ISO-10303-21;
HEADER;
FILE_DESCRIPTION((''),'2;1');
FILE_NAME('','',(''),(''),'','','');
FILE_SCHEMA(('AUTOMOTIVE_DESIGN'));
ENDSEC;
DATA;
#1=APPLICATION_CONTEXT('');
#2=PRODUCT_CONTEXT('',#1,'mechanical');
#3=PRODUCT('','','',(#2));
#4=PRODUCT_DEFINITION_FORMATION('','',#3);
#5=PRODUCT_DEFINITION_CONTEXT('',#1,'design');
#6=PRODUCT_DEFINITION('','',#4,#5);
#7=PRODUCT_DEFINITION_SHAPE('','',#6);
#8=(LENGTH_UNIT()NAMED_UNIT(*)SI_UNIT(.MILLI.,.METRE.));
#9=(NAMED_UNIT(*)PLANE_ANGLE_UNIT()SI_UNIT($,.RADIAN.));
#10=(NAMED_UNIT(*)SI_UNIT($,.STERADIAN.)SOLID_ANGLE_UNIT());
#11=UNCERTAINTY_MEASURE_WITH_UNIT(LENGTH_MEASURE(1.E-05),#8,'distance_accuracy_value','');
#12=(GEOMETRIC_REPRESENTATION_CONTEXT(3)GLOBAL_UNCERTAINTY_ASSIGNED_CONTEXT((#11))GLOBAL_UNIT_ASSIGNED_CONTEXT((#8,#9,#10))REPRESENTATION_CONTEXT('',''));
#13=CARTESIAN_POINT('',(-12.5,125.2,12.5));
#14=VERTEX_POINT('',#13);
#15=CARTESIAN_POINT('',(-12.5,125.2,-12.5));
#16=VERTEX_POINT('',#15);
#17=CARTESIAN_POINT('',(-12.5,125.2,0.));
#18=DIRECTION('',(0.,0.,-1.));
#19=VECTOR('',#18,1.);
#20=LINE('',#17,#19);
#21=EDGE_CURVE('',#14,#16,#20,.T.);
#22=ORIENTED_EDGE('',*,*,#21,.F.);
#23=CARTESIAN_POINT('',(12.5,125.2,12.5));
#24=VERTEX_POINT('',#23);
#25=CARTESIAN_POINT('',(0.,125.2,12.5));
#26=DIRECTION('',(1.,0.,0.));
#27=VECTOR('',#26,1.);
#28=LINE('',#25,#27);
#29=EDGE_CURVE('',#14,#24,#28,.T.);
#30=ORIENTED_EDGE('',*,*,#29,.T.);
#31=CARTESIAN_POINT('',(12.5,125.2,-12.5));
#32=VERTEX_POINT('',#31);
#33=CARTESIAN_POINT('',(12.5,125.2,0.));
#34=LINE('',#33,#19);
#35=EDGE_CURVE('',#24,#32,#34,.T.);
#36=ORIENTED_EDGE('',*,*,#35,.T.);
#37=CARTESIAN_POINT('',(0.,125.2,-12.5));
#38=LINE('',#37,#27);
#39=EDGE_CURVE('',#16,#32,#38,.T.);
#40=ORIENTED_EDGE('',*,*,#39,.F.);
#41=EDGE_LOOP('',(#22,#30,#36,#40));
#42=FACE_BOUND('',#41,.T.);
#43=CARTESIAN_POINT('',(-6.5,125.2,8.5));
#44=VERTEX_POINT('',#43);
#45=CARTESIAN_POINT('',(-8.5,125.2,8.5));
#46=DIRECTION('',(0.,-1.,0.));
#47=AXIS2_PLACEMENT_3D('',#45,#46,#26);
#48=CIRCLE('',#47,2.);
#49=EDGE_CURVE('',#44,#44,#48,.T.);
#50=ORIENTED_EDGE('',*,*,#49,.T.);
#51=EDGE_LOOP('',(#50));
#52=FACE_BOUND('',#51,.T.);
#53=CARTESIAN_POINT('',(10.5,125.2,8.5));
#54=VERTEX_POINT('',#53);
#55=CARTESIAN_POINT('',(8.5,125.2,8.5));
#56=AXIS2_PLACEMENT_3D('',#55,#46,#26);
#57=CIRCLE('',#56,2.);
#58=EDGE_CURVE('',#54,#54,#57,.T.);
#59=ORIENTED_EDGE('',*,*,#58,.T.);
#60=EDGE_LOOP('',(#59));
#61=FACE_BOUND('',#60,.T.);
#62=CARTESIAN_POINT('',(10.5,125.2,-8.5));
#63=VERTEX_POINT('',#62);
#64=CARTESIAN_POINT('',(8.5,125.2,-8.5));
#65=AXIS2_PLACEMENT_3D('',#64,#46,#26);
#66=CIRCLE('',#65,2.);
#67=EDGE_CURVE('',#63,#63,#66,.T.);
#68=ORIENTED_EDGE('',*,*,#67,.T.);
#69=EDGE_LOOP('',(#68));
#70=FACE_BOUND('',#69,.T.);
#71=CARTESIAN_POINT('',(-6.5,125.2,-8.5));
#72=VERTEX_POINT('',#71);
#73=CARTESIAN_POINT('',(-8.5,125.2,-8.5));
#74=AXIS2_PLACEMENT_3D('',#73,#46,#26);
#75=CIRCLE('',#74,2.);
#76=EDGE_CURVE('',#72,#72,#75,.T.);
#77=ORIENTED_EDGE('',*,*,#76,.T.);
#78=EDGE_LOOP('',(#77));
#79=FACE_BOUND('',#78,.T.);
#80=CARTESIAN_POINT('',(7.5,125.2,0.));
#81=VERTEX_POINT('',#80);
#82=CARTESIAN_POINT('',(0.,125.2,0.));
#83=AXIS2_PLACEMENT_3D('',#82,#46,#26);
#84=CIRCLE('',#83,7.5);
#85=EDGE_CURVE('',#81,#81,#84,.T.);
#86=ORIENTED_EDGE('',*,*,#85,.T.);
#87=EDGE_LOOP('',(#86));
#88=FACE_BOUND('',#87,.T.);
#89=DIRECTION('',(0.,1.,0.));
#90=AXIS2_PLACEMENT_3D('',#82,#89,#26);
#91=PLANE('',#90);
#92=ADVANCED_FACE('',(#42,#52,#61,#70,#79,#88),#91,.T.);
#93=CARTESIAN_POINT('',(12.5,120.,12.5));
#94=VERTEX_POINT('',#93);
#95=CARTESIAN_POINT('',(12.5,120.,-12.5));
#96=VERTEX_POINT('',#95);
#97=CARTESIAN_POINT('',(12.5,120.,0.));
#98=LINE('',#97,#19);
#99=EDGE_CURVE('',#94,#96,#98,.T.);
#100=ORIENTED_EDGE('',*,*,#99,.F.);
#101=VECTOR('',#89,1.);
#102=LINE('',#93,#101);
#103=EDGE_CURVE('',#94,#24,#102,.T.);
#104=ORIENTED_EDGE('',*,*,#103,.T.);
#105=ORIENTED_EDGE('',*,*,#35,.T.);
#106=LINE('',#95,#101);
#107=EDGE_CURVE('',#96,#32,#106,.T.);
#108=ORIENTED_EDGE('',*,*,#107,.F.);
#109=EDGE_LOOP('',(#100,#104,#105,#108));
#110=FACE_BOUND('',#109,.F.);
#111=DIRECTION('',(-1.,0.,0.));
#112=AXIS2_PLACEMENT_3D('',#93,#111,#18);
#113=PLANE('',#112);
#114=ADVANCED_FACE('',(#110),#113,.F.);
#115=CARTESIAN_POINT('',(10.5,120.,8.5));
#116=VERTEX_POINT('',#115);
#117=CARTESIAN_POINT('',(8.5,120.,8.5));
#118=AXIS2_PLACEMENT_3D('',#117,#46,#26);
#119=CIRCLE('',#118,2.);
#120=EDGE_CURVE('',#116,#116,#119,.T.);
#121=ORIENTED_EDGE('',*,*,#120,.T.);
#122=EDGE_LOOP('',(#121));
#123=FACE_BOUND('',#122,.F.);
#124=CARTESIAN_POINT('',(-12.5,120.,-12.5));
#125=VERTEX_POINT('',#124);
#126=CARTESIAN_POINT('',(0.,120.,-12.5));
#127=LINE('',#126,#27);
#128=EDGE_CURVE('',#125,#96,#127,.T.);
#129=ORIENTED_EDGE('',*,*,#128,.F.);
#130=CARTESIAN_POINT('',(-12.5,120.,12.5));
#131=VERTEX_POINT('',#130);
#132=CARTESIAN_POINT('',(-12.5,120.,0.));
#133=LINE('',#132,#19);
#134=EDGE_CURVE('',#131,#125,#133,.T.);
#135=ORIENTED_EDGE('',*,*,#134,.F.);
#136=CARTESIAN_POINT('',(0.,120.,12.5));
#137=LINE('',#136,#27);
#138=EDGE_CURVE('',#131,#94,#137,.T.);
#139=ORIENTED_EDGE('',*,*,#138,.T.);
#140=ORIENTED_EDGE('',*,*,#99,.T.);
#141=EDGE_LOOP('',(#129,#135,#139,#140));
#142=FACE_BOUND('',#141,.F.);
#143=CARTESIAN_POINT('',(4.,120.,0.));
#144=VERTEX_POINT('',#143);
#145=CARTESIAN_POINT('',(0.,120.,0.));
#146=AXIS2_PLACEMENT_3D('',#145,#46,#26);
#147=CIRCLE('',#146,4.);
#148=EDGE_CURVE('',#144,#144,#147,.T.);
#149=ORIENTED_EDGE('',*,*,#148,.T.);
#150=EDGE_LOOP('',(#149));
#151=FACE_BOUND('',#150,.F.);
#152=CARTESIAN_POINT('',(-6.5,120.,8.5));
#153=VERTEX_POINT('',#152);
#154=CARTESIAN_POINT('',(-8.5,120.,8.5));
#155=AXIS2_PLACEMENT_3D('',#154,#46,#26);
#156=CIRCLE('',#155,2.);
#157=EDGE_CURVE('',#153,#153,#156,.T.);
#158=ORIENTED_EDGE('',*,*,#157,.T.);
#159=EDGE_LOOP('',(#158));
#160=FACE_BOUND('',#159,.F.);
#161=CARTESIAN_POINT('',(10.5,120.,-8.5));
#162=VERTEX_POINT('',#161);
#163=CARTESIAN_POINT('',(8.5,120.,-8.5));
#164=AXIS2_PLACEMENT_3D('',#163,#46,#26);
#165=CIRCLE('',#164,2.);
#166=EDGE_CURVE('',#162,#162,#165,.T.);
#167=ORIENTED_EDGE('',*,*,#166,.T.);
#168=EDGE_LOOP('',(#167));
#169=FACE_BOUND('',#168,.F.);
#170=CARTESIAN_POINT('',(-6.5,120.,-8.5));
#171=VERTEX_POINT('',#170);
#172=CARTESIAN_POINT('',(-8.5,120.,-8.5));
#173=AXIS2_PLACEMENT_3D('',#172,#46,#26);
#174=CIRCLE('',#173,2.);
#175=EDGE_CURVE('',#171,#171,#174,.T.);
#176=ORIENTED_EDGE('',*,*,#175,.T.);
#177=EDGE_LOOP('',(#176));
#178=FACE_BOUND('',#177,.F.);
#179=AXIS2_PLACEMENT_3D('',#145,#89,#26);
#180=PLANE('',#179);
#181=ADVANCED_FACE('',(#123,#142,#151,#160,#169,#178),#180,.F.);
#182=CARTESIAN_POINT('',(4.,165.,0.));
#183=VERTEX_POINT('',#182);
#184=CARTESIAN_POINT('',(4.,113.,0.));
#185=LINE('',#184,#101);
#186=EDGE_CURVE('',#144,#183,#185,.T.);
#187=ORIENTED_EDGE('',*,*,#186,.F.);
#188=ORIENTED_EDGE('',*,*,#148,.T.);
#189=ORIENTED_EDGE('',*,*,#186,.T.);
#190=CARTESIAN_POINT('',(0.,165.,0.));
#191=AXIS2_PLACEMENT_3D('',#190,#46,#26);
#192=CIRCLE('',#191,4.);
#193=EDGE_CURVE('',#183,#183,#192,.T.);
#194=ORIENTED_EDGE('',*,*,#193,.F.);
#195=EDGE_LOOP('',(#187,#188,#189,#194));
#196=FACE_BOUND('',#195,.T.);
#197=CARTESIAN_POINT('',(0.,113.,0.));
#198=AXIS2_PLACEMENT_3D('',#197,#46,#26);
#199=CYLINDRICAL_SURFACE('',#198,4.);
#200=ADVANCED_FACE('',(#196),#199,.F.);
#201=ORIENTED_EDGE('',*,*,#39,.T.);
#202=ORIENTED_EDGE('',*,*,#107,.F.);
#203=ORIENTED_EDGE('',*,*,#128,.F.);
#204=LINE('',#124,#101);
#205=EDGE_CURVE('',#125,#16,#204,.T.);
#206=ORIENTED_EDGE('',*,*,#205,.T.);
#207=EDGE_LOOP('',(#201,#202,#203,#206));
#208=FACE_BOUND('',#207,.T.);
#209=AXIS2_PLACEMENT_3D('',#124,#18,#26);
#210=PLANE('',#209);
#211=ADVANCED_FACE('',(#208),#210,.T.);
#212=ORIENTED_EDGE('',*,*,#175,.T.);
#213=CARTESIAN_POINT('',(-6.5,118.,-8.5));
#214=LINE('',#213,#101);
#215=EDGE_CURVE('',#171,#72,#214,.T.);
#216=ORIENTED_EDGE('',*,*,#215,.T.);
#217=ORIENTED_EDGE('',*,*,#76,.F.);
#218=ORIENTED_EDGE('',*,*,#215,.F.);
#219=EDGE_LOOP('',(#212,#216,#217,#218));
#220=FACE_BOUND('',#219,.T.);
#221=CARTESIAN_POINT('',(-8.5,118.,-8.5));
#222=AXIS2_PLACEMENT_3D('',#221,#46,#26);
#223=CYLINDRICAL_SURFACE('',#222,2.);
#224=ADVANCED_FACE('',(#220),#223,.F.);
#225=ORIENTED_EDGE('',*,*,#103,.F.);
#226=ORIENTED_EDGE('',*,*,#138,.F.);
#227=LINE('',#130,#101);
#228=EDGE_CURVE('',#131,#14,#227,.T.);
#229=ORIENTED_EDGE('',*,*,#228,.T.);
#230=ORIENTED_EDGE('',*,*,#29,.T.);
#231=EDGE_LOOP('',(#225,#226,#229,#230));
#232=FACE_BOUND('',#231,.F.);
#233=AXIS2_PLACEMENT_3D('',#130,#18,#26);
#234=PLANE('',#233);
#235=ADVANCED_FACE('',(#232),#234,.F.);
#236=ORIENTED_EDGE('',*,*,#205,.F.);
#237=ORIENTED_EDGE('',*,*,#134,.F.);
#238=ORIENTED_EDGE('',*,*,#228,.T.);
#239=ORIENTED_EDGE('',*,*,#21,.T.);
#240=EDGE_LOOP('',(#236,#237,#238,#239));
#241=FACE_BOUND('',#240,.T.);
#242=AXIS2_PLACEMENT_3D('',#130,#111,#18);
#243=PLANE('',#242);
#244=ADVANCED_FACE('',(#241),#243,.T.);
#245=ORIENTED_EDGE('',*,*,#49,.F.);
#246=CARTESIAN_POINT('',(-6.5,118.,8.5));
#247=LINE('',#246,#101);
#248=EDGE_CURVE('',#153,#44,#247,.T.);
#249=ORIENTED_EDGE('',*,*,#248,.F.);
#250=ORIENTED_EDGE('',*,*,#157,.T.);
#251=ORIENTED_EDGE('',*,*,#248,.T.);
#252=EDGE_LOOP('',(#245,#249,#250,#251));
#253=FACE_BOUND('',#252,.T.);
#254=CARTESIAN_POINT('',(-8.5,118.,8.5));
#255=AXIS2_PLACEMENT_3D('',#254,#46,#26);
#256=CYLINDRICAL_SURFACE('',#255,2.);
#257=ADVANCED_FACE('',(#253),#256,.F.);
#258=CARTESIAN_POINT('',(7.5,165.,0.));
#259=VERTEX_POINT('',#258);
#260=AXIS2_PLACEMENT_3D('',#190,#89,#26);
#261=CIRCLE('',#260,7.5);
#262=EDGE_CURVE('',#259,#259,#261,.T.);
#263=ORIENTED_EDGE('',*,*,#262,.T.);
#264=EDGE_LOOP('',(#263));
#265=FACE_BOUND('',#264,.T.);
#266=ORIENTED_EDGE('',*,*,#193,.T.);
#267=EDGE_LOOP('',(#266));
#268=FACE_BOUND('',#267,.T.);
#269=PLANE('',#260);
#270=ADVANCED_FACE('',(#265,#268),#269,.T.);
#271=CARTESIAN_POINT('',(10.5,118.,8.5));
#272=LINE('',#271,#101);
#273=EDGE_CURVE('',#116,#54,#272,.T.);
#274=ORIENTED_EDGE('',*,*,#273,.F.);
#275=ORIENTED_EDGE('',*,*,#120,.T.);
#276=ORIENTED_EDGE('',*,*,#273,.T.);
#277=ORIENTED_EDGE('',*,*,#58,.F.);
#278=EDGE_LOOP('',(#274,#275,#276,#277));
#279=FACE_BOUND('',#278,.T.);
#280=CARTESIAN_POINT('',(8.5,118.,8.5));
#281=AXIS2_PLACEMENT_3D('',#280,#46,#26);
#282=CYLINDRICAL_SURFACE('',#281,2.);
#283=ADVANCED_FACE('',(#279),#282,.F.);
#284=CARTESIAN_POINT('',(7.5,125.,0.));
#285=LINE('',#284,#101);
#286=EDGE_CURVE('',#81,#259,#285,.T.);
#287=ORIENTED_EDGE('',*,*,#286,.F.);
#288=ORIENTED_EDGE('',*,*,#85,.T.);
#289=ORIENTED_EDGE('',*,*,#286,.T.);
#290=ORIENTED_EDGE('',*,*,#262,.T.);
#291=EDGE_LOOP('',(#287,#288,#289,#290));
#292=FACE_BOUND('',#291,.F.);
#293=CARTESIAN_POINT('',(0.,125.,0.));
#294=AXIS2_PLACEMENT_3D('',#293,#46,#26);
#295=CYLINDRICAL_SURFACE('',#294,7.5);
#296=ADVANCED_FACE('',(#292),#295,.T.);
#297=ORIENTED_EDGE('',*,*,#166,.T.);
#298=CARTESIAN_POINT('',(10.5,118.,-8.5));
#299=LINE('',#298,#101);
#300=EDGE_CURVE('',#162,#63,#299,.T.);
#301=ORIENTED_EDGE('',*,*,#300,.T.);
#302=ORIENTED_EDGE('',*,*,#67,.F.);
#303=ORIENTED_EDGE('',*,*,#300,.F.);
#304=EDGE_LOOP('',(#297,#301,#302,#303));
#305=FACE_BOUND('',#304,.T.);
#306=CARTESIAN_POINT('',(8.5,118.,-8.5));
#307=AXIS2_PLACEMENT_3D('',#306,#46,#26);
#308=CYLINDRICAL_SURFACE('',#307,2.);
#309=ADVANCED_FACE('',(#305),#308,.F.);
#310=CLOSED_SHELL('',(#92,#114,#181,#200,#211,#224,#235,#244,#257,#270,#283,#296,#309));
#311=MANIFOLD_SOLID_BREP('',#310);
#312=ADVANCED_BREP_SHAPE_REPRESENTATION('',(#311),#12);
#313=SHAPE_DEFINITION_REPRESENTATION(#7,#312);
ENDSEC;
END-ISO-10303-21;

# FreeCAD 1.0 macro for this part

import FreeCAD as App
import Part
import Sketcher
from FreeCAD import Vector


def add_polygon(sketch, points):
    """Adds a closed chain of lines whose ends are joined by coincident constraints."""
    first, n = sketch.GeometryCount, len(points)
    for a, b in zip(points, points[1:] + points[:1]):
        sketch.addGeometry(Part.LineSegment(App.Vector(*a, 0), App.Vector(*b, 0)), False)
    for i in range(n):
        sketch.addConstraint(Sketcher.Constraint("Coincident", first + i, 2, first + (i + 1) % n, 1))

doc = App.newDocument("Part")
body = doc.addObject("PartDesign::Body", "Body")

sketch1 = body.newObject("Sketcher::SketchObject", "Sketch")
sketch1.AttachmentSupport = (doc.getObject("XY_Plane"), [""])
sketch1.MapMode = "FlatFace"
sketch1.AttachmentOffset = App.Placement(Vector(0, 0, -2), App.Rotation())
sketch1.addGeometry(Part.Circle(Vector(21, 21, 0), Vector(0, 0, 1), 2), False)
sketch1.addConstraint([
    Sketcher.Constraint("Diameter", 0, 4.0),
    Sketcher.Constraint("DistanceX", -1, 1, 0, 3, 21.0),
    Sketcher.Constraint("DistanceY", -1, 1, 0, 3, 21.0),
])
pad1 = body.newObject("PartDesign::Pad", "Pad")
pad1.Profile = sketch1
pad1.Length = 10
body2 = doc.addObject("PartDesign::Body", "Body001")

sketch2 = body2.newObject("Sketcher::SketchObject", "Sketch001")
sketch2.AttachmentSupport = (doc.getObject("XY_Plane001"), [""])
sketch2.MapMode = "FlatFace"
sketch2.AttachmentOffset = App.Placement(Vector(0, 0, -2), App.Rotation())
sketch2.addGeometry(Part.Circle(Vector(21, 4, 0), Vector(0, 0, 1), 2), False)
sketch2.addConstraint([
    Sketcher.Constraint("Diameter", 0, 4.0),
    Sketcher.Constraint("DistanceX", -1, 1, 0, 3, 21.0),
    Sketcher.Constraint("DistanceY", -1, 1, 0, 3, 4.0),
])
pad2 = body2.newObject("PartDesign::Pad", "Pad001")
pad2.Profile = sketch2
pad2.Length = 10
body3 = doc.addObject("PartDesign::Body", "Body002")

sketch3 = body3.newObject("Sketcher::SketchObject", "Sketch002")
sketch3.AttachmentSupport = (doc.getObject("XY_Plane002"), [""])
sketch3.MapMode = "FlatFace"
sketch3.AttachmentOffset = App.Placement(Vector(0, 0, -2), App.Rotation())
sketch3.addGeometry(Part.Circle(Vector(4, 21, 0), Vector(0, 0, 1), 2), False)
sketch3.addConstraint([
    Sketcher.Constraint("Diameter", 0, 4.0),
    Sketcher.Constraint("DistanceX", -1, 1, 0, 3, 4.0),
    Sketcher.Constraint("DistanceY", -1, 1, 0, 3, 21.0),
])
pad3 = body3.newObject("PartDesign::Pad", "Pad002")
pad3.Profile = sketch3
pad3.Length = 10
body4 = doc.addObject("PartDesign::Body", "Body003")

sketch4 = body4.newObject("Sketcher::SketchObject", "Sketch003")
sketch4.AttachmentSupport = (doc.getObject("XY_Plane003"), [""])
sketch4.MapMode = "FlatFace"
sketch4.AttachmentOffset = App.Placement(Vector(0, 0, -2), App.Rotation())
sketch4.addGeometry(Part.Circle(Vector(4, 4, 0), Vector(0, 0, 1), 2), False)
sketch4.addConstraint([
    Sketcher.Constraint("Diameter", 0, 4.0),
    Sketcher.Constraint("DistanceX", -1, 1, 0, 3, 4.0),
    Sketcher.Constraint("DistanceY", -1, 1, 0, 3, 4.0),
])
pad4 = body4.newObject("PartDesign::Pad", "Pad003")
pad4.Profile = sketch4
pad4.Length = 10
body5 = doc.addObject("PartDesign::Body", "Body004")

sketch5 = body5.newObject("Sketcher::SketchObject", "Sketch004")
sketch5.AttachmentSupport = (doc.getObject("XY_Plane004"), [""])
sketch5.MapMode = "FlatFace"
sketch5.AttachmentOffset = App.Placement(Vector(0, 0, -7), App.Rotation())
sketch5.addGeometry(Part.Circle(Vector(12.5, 12.5, 0), Vector(0, 0, 1), 4), False)
sketch5.addConstraint([
    Sketcher.Constraint("Diameter", 0, 8.0),
    Sketcher.Constraint("DistanceX", -1, 1, 0, 3, 12.5),
    Sketcher.Constraint("DistanceY", -1, 1, 0, 3, 12.5),
])
pad5 = body5.newObject("PartDesign::Pad", "Pad004")
pad5.Profile = sketch5
pad5.Length = 60
body6 = doc.addObject("PartDesign::Body", "Body005")

sketch6 = body6.newObject("Sketcher::SketchObject", "Sketch005")
sketch6.AttachmentSupport = (doc.getObject("XY_Plane005"), [""])
sketch6.MapMode = "FlatFace"
sketch6.AttachmentOffset = App.Placement(Vector(0, 0, 5), App.Rotation())
sketch6.addGeometry(Part.Circle(Vector(12.5, 12.5, 0), Vector(0, 0, 1), 7.5), False)
sketch6.addConstraint([
    Sketcher.Constraint("Diameter", 0, 15.0),
    Sketcher.Constraint("DistanceX", -1, 1, 0, 3, 12.5),
    Sketcher.Constraint("DistanceY", -1, 1, 0, 3, 12.5),
])
pad6 = body6.newObject("PartDesign::Pad", "Pad005")
pad6.Profile = sketch6
pad6.Length = 40
body7 = doc.addObject("PartDesign::Body", "Body006")

sketch7 = body7.newObject("Sketcher::SketchObject", "Sketch006")
sketch7.AttachmentSupport = (doc.getObject("XY_Plane006"), [""])
sketch7.MapMode = "FlatFace"
add_polygon(sketch7, [(0, 25), (0, 0), (25, 0), (25, 25)])
sketch7.addConstraint([
    Sketcher.Constraint("Vertical", 0),
    Sketcher.Constraint("Horizontal", 1),
    Sketcher.Constraint("Vertical", 2),
    Sketcher.Constraint("Horizontal", 3),
    Sketcher.Constraint("Coincident", 0, 2, -1, 1),
    Sketcher.Constraint("Equal", 3, 0),
    Sketcher.Constraint("DistanceX", 1, 1, 1, 2, 25.0),
])
pad7 = body7.newObject("PartDesign::Pad", "Pad006")
pad7.Profile = sketch7
pad7.Length = 5.2
doc.recompute()

boolean = body7.newObject("PartDesign::Boolean", "Boolean")
boolean.Type = "Fuse"
boolean.addObjects([body6])
doc.recompute()

boolean2 = body7.newObject("PartDesign::Boolean", "Boolean001")
boolean2.Type = "Cut"
boolean2.addObjects([body5])
doc.recompute()

boolean3 = body7.newObject("PartDesign::Boolean", "Boolean002")
boolean3.Type = "Cut"
boolean3.addObjects([body4])
doc.recompute()

boolean4 = body7.newObject("PartDesign::Boolean", "Boolean003")
boolean4.Type = "Cut"
boolean4.addObjects([body3])
doc.recompute()

boolean5 = body7.newObject("PartDesign::Boolean", "Boolean004")
boolean5.Type = "Cut"
boolean5.addObjects([body2])
doc.recompute()

boolean6 = body7.newObject("PartDesign::Boolean", "Boolean005")
boolean6.Type = "Cut"
boolean6.addObjects([body])
body8 = doc.addObject("PartDesign::Body", "Body007")
doc.recompute()

body7.Placement = App.Placement(Vector(-12.5, 120, 12.5), App.Rotation(Vector(-1, 0, 0), 90))
boolean7 = body8.newObject("PartDesign::Boolean", "Boolean006")
boolean7.Type = "Fuse"
boolean7.addObjects([body7])

doc.recompute()
